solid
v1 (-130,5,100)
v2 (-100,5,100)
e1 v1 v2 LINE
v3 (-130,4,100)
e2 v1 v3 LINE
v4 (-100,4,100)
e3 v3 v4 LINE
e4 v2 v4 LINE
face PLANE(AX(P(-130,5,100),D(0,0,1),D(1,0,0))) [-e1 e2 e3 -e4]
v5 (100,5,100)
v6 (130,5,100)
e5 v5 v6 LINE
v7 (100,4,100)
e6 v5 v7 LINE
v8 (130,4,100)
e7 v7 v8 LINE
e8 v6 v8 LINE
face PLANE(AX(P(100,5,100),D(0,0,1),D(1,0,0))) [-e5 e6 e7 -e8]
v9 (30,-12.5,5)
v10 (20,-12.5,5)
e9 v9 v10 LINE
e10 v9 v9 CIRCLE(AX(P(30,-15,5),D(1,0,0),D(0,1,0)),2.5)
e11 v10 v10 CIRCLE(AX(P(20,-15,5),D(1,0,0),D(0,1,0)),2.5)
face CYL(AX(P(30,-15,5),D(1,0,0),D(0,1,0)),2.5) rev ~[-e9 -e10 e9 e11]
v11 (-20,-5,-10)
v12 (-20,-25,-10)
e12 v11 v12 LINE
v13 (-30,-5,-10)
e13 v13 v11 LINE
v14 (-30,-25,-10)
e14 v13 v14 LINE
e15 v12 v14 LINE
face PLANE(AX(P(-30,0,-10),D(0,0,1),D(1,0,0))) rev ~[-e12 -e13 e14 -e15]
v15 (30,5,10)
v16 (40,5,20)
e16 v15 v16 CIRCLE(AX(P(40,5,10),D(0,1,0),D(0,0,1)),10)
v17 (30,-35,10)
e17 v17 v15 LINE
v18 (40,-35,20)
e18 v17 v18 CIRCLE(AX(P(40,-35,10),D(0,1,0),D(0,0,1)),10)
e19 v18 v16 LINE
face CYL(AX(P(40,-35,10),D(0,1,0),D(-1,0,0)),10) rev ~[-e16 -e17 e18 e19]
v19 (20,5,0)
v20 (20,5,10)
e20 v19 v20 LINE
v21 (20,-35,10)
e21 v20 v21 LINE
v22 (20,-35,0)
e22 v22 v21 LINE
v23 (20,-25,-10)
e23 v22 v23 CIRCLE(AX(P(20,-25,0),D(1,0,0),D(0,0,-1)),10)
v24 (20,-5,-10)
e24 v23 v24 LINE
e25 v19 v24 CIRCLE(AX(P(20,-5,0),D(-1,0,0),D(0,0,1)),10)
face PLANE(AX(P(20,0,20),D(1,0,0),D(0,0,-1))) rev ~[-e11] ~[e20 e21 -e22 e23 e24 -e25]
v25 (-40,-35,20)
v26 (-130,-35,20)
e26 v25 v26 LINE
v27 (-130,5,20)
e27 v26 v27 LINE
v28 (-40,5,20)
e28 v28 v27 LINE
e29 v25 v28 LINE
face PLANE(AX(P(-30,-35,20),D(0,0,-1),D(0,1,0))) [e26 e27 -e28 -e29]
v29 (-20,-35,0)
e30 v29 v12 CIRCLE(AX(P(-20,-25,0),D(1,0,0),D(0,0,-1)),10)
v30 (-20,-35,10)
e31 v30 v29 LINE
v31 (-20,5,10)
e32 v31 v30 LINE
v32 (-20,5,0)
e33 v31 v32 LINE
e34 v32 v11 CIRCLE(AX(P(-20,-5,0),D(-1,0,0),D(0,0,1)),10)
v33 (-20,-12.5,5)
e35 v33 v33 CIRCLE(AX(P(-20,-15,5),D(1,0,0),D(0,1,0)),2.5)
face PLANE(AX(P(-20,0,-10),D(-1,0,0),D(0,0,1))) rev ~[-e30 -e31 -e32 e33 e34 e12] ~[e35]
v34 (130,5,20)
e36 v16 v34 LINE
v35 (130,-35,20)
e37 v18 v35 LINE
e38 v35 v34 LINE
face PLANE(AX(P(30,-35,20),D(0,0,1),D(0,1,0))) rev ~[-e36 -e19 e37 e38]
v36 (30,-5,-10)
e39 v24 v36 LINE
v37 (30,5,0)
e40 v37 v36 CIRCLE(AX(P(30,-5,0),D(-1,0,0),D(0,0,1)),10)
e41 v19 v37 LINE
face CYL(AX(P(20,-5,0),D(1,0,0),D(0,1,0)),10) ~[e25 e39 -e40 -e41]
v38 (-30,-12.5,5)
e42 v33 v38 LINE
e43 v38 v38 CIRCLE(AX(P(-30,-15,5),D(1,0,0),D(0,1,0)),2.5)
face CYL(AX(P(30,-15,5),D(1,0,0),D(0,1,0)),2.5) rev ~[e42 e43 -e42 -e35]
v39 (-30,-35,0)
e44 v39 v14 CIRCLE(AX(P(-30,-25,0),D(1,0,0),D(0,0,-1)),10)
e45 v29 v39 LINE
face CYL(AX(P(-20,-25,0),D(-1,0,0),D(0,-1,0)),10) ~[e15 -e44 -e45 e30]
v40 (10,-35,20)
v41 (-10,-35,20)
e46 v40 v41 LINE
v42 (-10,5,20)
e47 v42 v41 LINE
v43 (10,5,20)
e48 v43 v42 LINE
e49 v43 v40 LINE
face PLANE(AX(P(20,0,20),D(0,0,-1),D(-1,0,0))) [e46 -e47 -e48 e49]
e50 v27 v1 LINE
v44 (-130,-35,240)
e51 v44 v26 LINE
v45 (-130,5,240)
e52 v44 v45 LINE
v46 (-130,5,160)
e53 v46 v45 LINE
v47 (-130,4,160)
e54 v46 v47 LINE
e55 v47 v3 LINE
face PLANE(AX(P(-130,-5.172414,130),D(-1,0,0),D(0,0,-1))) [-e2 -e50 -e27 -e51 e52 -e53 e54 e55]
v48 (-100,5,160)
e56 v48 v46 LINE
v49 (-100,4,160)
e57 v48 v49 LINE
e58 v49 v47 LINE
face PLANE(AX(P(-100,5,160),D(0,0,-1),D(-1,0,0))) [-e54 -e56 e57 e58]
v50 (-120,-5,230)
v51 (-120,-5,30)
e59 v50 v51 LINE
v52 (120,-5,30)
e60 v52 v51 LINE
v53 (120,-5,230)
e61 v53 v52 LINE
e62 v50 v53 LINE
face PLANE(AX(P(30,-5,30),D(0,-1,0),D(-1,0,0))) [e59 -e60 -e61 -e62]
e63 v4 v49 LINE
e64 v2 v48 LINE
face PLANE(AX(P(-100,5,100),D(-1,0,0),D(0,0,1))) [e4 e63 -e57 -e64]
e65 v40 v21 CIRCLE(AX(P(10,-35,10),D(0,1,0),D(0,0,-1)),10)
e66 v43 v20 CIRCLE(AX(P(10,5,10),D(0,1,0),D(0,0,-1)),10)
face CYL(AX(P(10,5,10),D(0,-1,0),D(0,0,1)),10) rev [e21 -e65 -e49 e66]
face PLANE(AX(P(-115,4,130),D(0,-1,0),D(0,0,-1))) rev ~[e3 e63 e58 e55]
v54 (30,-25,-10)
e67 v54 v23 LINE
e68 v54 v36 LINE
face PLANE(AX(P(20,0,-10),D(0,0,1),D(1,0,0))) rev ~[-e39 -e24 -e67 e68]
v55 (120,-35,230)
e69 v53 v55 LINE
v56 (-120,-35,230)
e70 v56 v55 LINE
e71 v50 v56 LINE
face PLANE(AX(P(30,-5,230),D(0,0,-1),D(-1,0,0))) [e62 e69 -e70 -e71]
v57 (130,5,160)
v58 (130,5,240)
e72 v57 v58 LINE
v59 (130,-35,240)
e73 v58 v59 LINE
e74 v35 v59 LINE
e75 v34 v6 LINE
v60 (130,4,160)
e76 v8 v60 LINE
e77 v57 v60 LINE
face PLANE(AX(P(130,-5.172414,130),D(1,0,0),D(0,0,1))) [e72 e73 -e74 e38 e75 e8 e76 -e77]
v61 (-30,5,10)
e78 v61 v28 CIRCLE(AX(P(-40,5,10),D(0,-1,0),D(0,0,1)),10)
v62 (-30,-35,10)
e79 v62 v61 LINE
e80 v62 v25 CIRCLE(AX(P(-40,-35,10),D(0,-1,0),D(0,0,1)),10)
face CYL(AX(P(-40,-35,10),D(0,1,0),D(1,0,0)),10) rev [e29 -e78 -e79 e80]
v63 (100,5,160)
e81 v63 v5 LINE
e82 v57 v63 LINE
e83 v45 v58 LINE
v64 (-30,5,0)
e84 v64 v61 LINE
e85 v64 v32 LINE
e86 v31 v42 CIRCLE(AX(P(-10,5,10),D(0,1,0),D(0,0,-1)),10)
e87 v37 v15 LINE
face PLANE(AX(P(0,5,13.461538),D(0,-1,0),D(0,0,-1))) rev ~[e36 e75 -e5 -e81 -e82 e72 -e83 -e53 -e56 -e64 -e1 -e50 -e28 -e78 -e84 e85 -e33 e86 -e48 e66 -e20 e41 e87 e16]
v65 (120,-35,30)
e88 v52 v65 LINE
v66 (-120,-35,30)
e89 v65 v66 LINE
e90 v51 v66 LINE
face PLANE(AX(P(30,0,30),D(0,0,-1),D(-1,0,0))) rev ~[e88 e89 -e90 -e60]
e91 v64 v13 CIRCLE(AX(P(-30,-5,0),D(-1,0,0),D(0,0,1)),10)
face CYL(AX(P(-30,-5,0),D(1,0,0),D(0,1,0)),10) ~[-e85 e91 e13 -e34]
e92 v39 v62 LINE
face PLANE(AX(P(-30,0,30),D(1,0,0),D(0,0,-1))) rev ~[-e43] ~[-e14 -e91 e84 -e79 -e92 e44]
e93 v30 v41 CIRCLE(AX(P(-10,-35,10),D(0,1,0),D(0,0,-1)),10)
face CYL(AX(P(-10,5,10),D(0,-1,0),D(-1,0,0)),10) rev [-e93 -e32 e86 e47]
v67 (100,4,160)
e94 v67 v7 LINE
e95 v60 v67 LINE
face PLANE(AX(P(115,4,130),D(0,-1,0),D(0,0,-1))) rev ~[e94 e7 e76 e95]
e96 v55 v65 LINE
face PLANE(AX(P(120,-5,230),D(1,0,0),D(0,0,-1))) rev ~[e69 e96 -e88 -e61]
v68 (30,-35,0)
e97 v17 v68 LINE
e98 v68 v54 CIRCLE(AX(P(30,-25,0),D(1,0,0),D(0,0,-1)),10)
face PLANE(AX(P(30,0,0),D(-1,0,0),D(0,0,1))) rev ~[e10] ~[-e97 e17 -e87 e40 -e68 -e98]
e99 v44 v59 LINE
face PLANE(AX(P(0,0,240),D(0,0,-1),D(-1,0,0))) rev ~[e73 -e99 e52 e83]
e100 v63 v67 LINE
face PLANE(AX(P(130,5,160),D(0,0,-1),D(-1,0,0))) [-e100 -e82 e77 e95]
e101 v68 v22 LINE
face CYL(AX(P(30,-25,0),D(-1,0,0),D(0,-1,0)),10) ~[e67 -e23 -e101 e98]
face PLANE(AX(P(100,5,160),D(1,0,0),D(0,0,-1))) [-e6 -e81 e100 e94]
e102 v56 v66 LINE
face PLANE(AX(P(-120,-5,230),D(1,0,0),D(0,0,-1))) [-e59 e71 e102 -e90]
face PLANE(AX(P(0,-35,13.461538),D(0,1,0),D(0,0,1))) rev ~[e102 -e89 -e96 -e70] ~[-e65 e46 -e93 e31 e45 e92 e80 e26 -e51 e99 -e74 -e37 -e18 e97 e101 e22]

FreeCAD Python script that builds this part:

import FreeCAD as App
import Part
import Sketcher
from FreeCAD import Vector


def edges_at(feature, points):
    """Names of the edges that pass closest to the given points."""
    edges = feature.Shape.Edges
    near = lambda p: min(range(len(edges)), key=lambda i: edges[i].distToShape(Part.Vertex(*p))[0])
    return sorted({f"Edge{near(p) + 1}" for p in points})


def add_polygon(sketch, points):
    """Adds a closed chain of lines whose ends are joined by coincident constraints."""
    first, n = sketch.GeometryCount, len(points)
    for a, b in zip(points, points[1:] + points[:1]):
        sketch.addGeometry(Part.LineSegment(App.Vector(*a, 0), App.Vector(*b, 0)), False)
    for i in range(n):
        sketch.addConstraint(Sketcher.Constraint("Coincident", first + i, 2, first + (i + 1) % n, 1))

doc = App.newDocument("Part")
params = doc.addObject("Spreadsheet::Sheet", "Params")
for row, (alias, value) in enumerate([
    ("sketch1_diameter", "5 mm"),
    ("pad1_length", "40 mm"),
    ("sketch2_width", "60 mm"),
    ("sketch2_width2", "10 mm"),
    ("sketch2_height", "30 mm"),
    ("pad2_length", "10 mm"),
    ("sketch3_width", "40 mm"),
    ("sketch3_height", "15 mm"),
    ("pocket1_length", "16.4245 mm"),
    ("sketch4_width", "10 mm"),
    ("sketch4_width2", "40 mm"),
    ("sketch4_height", "30 mm"),
    ("pad3_length", "30 mm"),
    ("sketch5_diameter", "5 mm"),
    ("pocket2_length", "72.3648 mm"),
    ("fillet_radius", "10 mm"),
    ("sketch6_width", "60 mm"),
    ("sketch6_height", "10 mm"),
    ("pad4_length", "210 mm"),
    ("sketch7_width", "60 mm"),
    ("sketch7_height", "10 mm"),
    ("pad5_length", "30 mm"),
    ("sketch8_width", "30 mm"),
    ("sketch8_width2", "40 mm"),
    ("sketch8_height", "10 mm"),
    ("sketch8_height2", "220 mm"),
    ("pad6_length", "100 mm"),
    ("sketch9_width", "40 mm"),
    ("sketch9_width2", "30 mm"),
    ("sketch9_height", "10 mm"),
    ("sketch9_height2", "220 mm"),
    ("pad7_length", "100 mm"),
    ("sketch10_width", "10 mm"),
    ("sketch10_height", "200 mm"),
    ("pad8_length", "30 mm"),
    ("fillet2_radius", "10 mm"),
    ("sketch11_width", "30 mm"),
    ("sketch11_height", "60 mm"),
    ("pocket3_length", "1 mm"),
], start=1):
    params.set(f"A{row}", alias)
    params.set(f"B{row}", "=" + value)
    params.setAlias(f"B{row}", alias)

body = doc.addObject("PartDesign::Body", "Body")

# Sketch on YZ plane
sketch1 = doc.addObject("Sketcher::SketchObject", "Sketch")
body.addObject(sketch1)
sketch1.AttachmentSupport = (doc.YZ_Plane, [""])
sketch1.MapMode = "FlatFace"
sketch1.addGeometry(Part.Circle(Vector(0, 0, 0), Vector(0, 0, 1), 2.5), False)
sketch1.addConstraint([
    Sketcher.Constraint("Coincident", 0, 3, -1, 1),
    Sketcher.Constraint("Diameter", 0, 5.0),
])
sketch1.setExpression("Constraints[1]", "Params.sketch1_diameter")
pad1 = doc.addObject("PartDesign::Pad", "Pad")
body.addObject(pad1)
pad1.Profile = sketch1
pad1.setExpression("Length", "Params.pad1_length")
pad1.Midplane = True

# Sketch on XZ plane
sketch2 = doc.addObject("Sketcher::SketchObject", "Sketch001")
body.addObject(sketch2)
sketch2.AttachmentSupport = (doc.XZ_Plane, [""])
sketch2.MapMode = "FlatFace"
add_polygon(sketch2, [(30, -10), (30, 30), (-30, 30), (-30, -10), (-20, -10), (-20, 20), (20, 20), (20, -10)])  # lines 0-7
sketch2.addConstraint([
    Sketcher.Constraint("Vertical", 0),
    Sketcher.Constraint("Horizontal", 1),
    Sketcher.Constraint("Vertical", 2),
    Sketcher.Constraint("Horizontal", 3),
    Sketcher.Constraint("Vertical", 4),
    Sketcher.Constraint("Horizontal", 5),
    Sketcher.Constraint("Vertical", 6),
    Sketcher.Constraint("Horizontal", 7),
    Sketcher.Constraint("Symmetric", 3, 2, 6, 2, -2),
    Sketcher.Constraint("Equal", 3, 7),
    Sketcher.Constraint("Equal", 5, 0),
    Sketcher.Constraint("DistanceX", 1, 2, 1, 1, 60.0),
    Sketcher.Constraint("DistanceX", 3, 1, 3, 2, 10.0),
    Sketcher.Constraint("DistanceY", 4, 1, 4, 2, 30.0),
    Sketcher.Constraint("DistanceY", -1, 1, 0, 2, 30.0),
])
sketch2.setExpression("Constraints[19]", "Params.sketch2_width")
sketch2.setExpression("Constraints[20]", "Params.sketch2_width2")
sketch2.setExpression("Constraints[21]", "Params.sketch2_height")
pad2 = doc.addObject("PartDesign::Pad", "Pad001")
body.addObject(pad2)
pad2.Profile = sketch2
pad2.setExpression("Length", "Params.pad2_length")
pad2.Midplane = True

# Sketch on XZ plane
sketch3 = doc.addObject("Sketcher::SketchObject", "Sketch002")
body.addObject(sketch3)
sketch3.AttachmentSupport = (doc.XZ_Plane, [""])
sketch3.MapMode = "FlatFace"
sketch3.AttachmentOffset = App.Placement(Vector(0, 0, 5), App.Rotation())
add_polygon(sketch3, [(-20, 5), (-20, -10), (20, -10), (20, 5)])  # lines 0-3
sketch3.addConstraint([
    Sketcher.Constraint("Vertical", 0),
    Sketcher.Constraint("Horizontal", 1),
    Sketcher.Constraint("Vertical", 2),
    Sketcher.Constraint("Horizontal", 3),
    Sketcher.Constraint("DistanceX", 1, 1, 1, 2, 40.0),
    Sketcher.Constraint("DistanceY", 0, 2, 0, 1, 15.0),
    Sketcher.Constraint("DistanceX", 0, 2, -1, 1, 20.0),
    Sketcher.Constraint("DistanceY", 0, 2, -1, 1, 10.0),
])
sketch3.setExpression("Constraints[8]", "Params.sketch3_width")
sketch3.setExpression("Constraints[9]", "Params.sketch3_height")
pocket1 = doc.addObject("PartDesign::Pocket", "Pocket")
body.addObject(pocket1)
pocket1.Profile = sketch3
pocket1.setExpression("Length", "Params.pocket1_length")

# Sketch on XZ plane
sketch4 = doc.addObject("Sketcher::SketchObject", "Sketch003")
body.addObject(sketch4)
sketch4.AttachmentSupport = (doc.XZ_Plane, [""])
sketch4.MapMode = "FlatFace"
sketch4.AttachmentOffset = App.Placement(Vector(0, 0, 5), App.Rotation())
add_polygon(sketch4, [(-30, 30), (-30, -10), (-20, -10), (-20, 20), (20, 20), (20, -10), (30, -10), (30, 30)])  # lines 0-7
sketch4.addConstraint([
    Sketcher.Constraint("Vertical", 0),
    Sketcher.Constraint("Horizontal", 1),
    Sketcher.Constraint("Vertical", 2),
    Sketcher.Constraint("Horizontal", 3),
    Sketcher.Constraint("Vertical", 4),
    Sketcher.Constraint("Horizontal", 5),
    Sketcher.Constraint("Vertical", 6),
    Sketcher.Constraint("Horizontal", 7),
    Sketcher.Constraint("Symmetric", 1, 2, 4, 2, -2),
    Sketcher.Constraint("Equal", 1, 5),
    Sketcher.Constraint("Equal", 3, 0),
    Sketcher.Constraint("DistanceX", 1, 1, 1, 2, 10.0),
    Sketcher.Constraint("DistanceX", 3, 1, 3, 2, 40.0),
    Sketcher.Constraint("DistanceY", 2, 1, 2, 2, 30.0),
    Sketcher.Constraint("DistanceY", 0, 2, -1, 1, 10.0),
])
sketch4.setExpression("Constraints[19]", "Params.sketch4_width")
sketch4.setExpression("Constraints[20]", "Params.sketch4_width2")
sketch4.setExpression("Constraints[21]", "Params.sketch4_height")
pad3 = doc.addObject("PartDesign::Pad", "Pad002")
body.addObject(pad3)
pad3.Profile = sketch4
pad3.setExpression("Length", "Params.pad3_length")

# Sketch on YZ plane
sketch5 = doc.addObject("Sketcher::SketchObject", "Sketch004")
body.addObject(sketch5)
sketch5.AttachmentSupport = (doc.YZ_Plane, [""])
sketch5.MapMode = "FlatFace"
sketch5.AttachmentOffset = App.Placement(Vector(0, 0, 30), App.Rotation())
sketch5.addGeometry(Part.Circle(Vector(-15, 5, 0), Vector(0, 0, 1), 2.5), False)
sketch5.addConstraint([
    Sketcher.Constraint("Diameter", 0, 5.0),
    Sketcher.Constraint("DistanceX", 0, 3, -1, 1, 15.0),
    Sketcher.Constraint("DistanceY", -1, 1, 0, 3, 5.0),
])
sketch5.setExpression("Constraints[0]", "Params.sketch5_diameter")
pocket2 = doc.addObject("PartDesign::Pocket", "Pocket001")
body.addObject(pocket2)
pocket2.Profile = sketch5
pocket2.setExpression("Length", "Params.pocket2_length")
doc.recompute()

fillet = doc.addObject("PartDesign::Fillet", "Fillet")
body.addObject(fillet)
fillet.Base = (pocket2, edges_at(pocket2, [
    (-25, -35, -10),
    (25, -35, -10),
    (-25, 5, -10),
    (25, 5, -10),
]))
fillet.setExpression("Radius", "Params.fillet_radius")

# Sketch on XY plane
sketch6 = doc.addObject("Sketcher::SketchObject", "Sketch005")
body.addObject(sketch6)
sketch6.AttachmentSupport = (doc.XY_Plane, [""])
sketch6.MapMode = "FlatFace"
sketch6.AttachmentOffset = App.Placement(Vector(0, 0, 30), App.Rotation())
add_polygon(sketch6, [(30, -5), (30, 5), (-30, 5), (-30, -5)])  # lines 0-3
sketch6.addConstraint([
    Sketcher.Constraint("Vertical", 0),
    Sketcher.Constraint("Horizontal", 1),
    Sketcher.Constraint("Vertical", 2),
    Sketcher.Constraint("Horizontal", 3),
    Sketcher.Constraint("Symmetric", 0, 2, 2, 2, -1, 1),
    Sketcher.Constraint("DistanceX", 1, 2, 1, 1, 60.0),
    Sketcher.Constraint("DistanceY", 0, 1, 0, 2, 10.0),
])
sketch6.setExpression("Constraints[9]", "Params.sketch6_width")
sketch6.setExpression("Constraints[10]", "Params.sketch6_height")
pad4 = doc.addObject("PartDesign::Pad", "Pad003")
body.addObject(pad4)
pad4.Profile = sketch6
pad4.setExpression("Length", "Params.pad4_length")

# Sketch on XZ plane
sketch7 = doc.addObject("Sketcher::SketchObject", "Sketch006")
body.addObject(sketch7)
sketch7.AttachmentSupport = (doc.XZ_Plane, [""])
sketch7.MapMode = "FlatFace"
sketch7.AttachmentOffset = App.Placement(Vector(0, 0, 5), App.Rotation())
add_polygon(sketch7, [(30, 230), (30, 240), (-30, 240), (-30, 230)])  # lines 0-3
sketch7.addConstraint([
    Sketcher.Constraint("Vertical", 0),
    Sketcher.Constraint("Horizontal", 1),
    Sketcher.Constraint("Vertical", 2),
    Sketcher.Constraint("Horizontal", 3),
    Sketcher.Constraint("DistanceX", 1, 2, 1, 1, 60.0),
    Sketcher.Constraint("DistanceY", 0, 1, 0, 2, 10.0),
    Sketcher.Constraint("DistanceX", -1, 1, 0, 2, 30.0),
    Sketcher.Constraint("DistanceY", -1, 1, 0, 2, 240.0),
])
sketch7.setExpression("Constraints[8]", "Params.sketch7_width")
sketch7.setExpression("Constraints[9]", "Params.sketch7_height")
pad5 = doc.addObject("PartDesign::Pad", "Pad004")
body.addObject(pad5)
pad5.Profile = sketch7
pad5.setExpression("Length", "Params.pad5_length")

# Sketch on YZ plane
sketch8 = doc.addObject("Sketcher::SketchObject", "Sketch007")
body.addObject(sketch8)
sketch8.AttachmentSupport = (doc.YZ_Plane, [""])
sketch8.MapMode = "FlatFace"
sketch8.AttachmentOffset = App.Placement(Vector(0, 0, 30), App.Rotation())
add_polygon(sketch8, [(-5, 30), (-35, 30), (-35, 20), (5, 20), (5, 240), (-35, 240), (-35, 230), (-5, 230)])  # lines 0-7
sketch8.addConstraint([
    Sketcher.Constraint("Horizontal", 0),
    Sketcher.Constraint("Vertical", 1),
    Sketcher.Constraint("Horizontal", 2),
    Sketcher.Constraint("Vertical", 3),
    Sketcher.Constraint("Horizontal", 4),
    Sketcher.Constraint("Vertical", 5),
    Sketcher.Constraint("Horizontal", 6),
    Sketcher.Constraint("Vertical", 7),
    Sketcher.Constraint("Vertical", 1, 2, 4, 2),
    Sketcher.Constraint("Equal", 1, 5),
    Sketcher.Constraint("DistanceX", 0, 2, 0, 1, 30.0),
    Sketcher.Constraint("DistanceX", 2, 1, 2, 2, 40.0),
    Sketcher.Constraint("DistanceY", 1, 2, 1, 1, 10.0),
    Sketcher.Constraint("DistanceY", 3, 1, 3, 2, 220.0),
    Sketcher.Constraint("DistanceX", 0, 2, -1, 1, 35.0),
    Sketcher.Constraint("DistanceY", -1, 1, 0, 2, 30.0),
])
sketch8.setExpression("Constraints[18]", "Params.sketch8_width")
sketch8.setExpression("Constraints[19]", "Params.sketch8_width2")
sketch8.setExpression("Constraints[20]", "Params.sketch8_height")
sketch8.setExpression("Constraints[21]", "Params.sketch8_height2")
pad6 = doc.addObject("PartDesign::Pad", "Pad005")
body.addObject(pad6)
pad6.Profile = sketch8
pad6.setExpression("Length", "Params.pad6_length")

# Sketch on YZ plane
sketch9 = doc.addObject("Sketcher::SketchObject", "Sketch008")
body.addObject(sketch9)
sketch9.AttachmentSupport = (doc.YZ_Plane, [""])
sketch9.MapMode = "FlatFace"
sketch9.AttachmentOffset = App.Placement(Vector(0, 0, -30), App.Rotation())
add_polygon(sketch9, [(-35, 230), (-35, 240), (5, 240), (5, 20), (-35, 20), (-35, 30), (-5, 30), (-5, 230)])  # lines 0-7
sketch9.addConstraint([
    Sketcher.Constraint("Vertical", 0),
    Sketcher.Constraint("Horizontal", 1),
    Sketcher.Constraint("Vertical", 2),
    Sketcher.Constraint("Horizontal", 3),
    Sketcher.Constraint("Vertical", 4),
    Sketcher.Constraint("Horizontal", 5),
    Sketcher.Constraint("Vertical", 6),
    Sketcher.Constraint("Horizontal", 7),
    Sketcher.Constraint("Vertical", 0, 2, 3, 2),
    Sketcher.Constraint("Equal", 0, 4),
    Sketcher.Constraint("DistanceX", 1, 1, 1, 2, 40.0),
    Sketcher.Constraint("DistanceX", 5, 1, 5, 2, 30.0),
    Sketcher.Constraint("DistanceY", 0, 1, 0, 2, 10.0),
    Sketcher.Constraint("DistanceY", 2, 2, 2, 1, 220.0),
    Sketcher.Constraint("DistanceX", 0, 2, -1, 1, 35.0),
    Sketcher.Constraint("DistanceY", -1, 1, 0, 2, 240.0),
])
sketch9.setExpression("Constraints[18]", "Params.sketch9_width")
sketch9.setExpression("Constraints[19]", "Params.sketch9_width2")
sketch9.setExpression("Constraints[20]", "Params.sketch9_height")
sketch9.setExpression("Constraints[21]", "Params.sketch9_height2")
pad7 = doc.addObject("PartDesign::Pad", "Pad006")
body.addObject(pad7)
pad7.Profile = sketch9
pad7.setExpression("Length", "Params.pad7_length")
pad7.Reversed = True

# Sketch on XZ plane
sketch10 = doc.addObject("Sketcher::SketchObject", "Sketch009")
body.addObject(sketch10)
sketch10.AttachmentSupport = (doc.XZ_Plane, [""])
sketch10.MapMode = "FlatFace"
sketch10.AttachmentOffset = App.Placement(Vector(0, 0, 5), App.Rotation())
add_polygon(sketch10, [(-120, 230), (-130, 230), (-130, 30), (-120, 30)])  # lines 0-3
add_polygon(sketch10, [(130, 30), (130, 230), (120, 230), (120, 30)])  # lines 4-7
sketch10.addConstraint([
    Sketcher.Constraint("Horizontal", 0),
    Sketcher.Constraint("Vertical", 1),
    Sketcher.Constraint("Horizontal", 2),
    Sketcher.Constraint("Vertical", 3),
    Sketcher.Constraint("Vertical", 4),
    Sketcher.Constraint("Horizontal", 5),
    Sketcher.Constraint("Vertical", 6),
    Sketcher.Constraint("Horizontal", 7),
    Sketcher.Constraint("Symmetric", 0, 2, 4, 2, -2),
    Sketcher.Constraint("Symmetric", 2, 2, 6, 2, -2),
    Sketcher.Constraint("DistanceX", 0, 2, 0, 1, 10.0),
    Sketcher.Constraint("DistanceY", 1, 2, 1, 1, 200.0),
    Sketcher.Constraint("DistanceX", 0, 2, -1, 1, 130.0),
    Sketcher.Constraint("DistanceY", -1, 1, 0, 2, 230.0),
])
sketch10.setExpression("Constraints[18]", "Params.sketch10_width")
sketch10.setExpression("Constraints[19]", "Params.sketch10_height")
pad8 = doc.addObject("PartDesign::Pad", "Pad007")
body.addObject(pad8)
pad8.Profile = sketch10
pad8.setExpression("Length", "Params.pad8_length")
doc.recompute()

fillet2 = doc.addObject("PartDesign::Fillet", "Fillet001")
body.addObject(fillet2)
fillet2.Base = (pad8, edges_at(pad8, [
    (-30, -15, 20),
    (30, -15, 20),
    (-20, -15, 20),
    (20, -15, 20),
]))
fillet2.setExpression("Radius", "Params.fillet2_radius")

# Sketch on XZ plane
sketch11 = doc.addObject("Sketcher::SketchObject", "Sketch010")
body.addObject(sketch11)
sketch11.AttachmentSupport = (doc.XZ_Plane, [""])
sketch11.MapMode = "FlatFace"
sketch11.AttachmentOffset = App.Placement(Vector(0, 0, -5), App.Rotation())
add_polygon(sketch11, [(-130, 100), (-130, 160), (-100, 160), (-100, 100)])  # lines 0-3
add_polygon(sketch11, [(100, 160), (130, 160), (130, 100), (100, 100)])  # lines 4-7
sketch11.addConstraint([
    Sketcher.Constraint("Vertical", 0),
    Sketcher.Constraint("Horizontal", 1),
    Sketcher.Constraint("Vertical", 2),
    Sketcher.Constraint("Horizontal", 3),
    Sketcher.Constraint("Horizontal", 4),
    Sketcher.Constraint("Vertical", 5),
    Sketcher.Constraint("Horizontal", 6),
    Sketcher.Constraint("Vertical", 7),
    Sketcher.Constraint("Symmetric", 0, 2, 4, 2, -2),
    Sketcher.Constraint("Symmetric", 2, 2, 6, 2, -2),
    Sketcher.Constraint("DistanceX", 1, 1, 1, 2, 30.0),
    Sketcher.Constraint("DistanceY", 0, 1, 0, 2, 60.0),
    Sketcher.Constraint("DistanceX", 0, 2, -1, 1, 130.0),
    Sketcher.Constraint("DistanceY", -1, 1, 0, 2, 160.0),
])
sketch11.setExpression("Constraints[18]", "Params.sketch11_width")
sketch11.setExpression("Constraints[19]", "Params.sketch11_height")
pocket3 = doc.addObject("PartDesign::Pocket", "Pocket002")
body.addObject(pocket3)
pocket3.Profile = sketch11
pocket3.setExpression("Length", "Params.pocket3_length")
pocket3.Reversed = True

doc.recompute()
